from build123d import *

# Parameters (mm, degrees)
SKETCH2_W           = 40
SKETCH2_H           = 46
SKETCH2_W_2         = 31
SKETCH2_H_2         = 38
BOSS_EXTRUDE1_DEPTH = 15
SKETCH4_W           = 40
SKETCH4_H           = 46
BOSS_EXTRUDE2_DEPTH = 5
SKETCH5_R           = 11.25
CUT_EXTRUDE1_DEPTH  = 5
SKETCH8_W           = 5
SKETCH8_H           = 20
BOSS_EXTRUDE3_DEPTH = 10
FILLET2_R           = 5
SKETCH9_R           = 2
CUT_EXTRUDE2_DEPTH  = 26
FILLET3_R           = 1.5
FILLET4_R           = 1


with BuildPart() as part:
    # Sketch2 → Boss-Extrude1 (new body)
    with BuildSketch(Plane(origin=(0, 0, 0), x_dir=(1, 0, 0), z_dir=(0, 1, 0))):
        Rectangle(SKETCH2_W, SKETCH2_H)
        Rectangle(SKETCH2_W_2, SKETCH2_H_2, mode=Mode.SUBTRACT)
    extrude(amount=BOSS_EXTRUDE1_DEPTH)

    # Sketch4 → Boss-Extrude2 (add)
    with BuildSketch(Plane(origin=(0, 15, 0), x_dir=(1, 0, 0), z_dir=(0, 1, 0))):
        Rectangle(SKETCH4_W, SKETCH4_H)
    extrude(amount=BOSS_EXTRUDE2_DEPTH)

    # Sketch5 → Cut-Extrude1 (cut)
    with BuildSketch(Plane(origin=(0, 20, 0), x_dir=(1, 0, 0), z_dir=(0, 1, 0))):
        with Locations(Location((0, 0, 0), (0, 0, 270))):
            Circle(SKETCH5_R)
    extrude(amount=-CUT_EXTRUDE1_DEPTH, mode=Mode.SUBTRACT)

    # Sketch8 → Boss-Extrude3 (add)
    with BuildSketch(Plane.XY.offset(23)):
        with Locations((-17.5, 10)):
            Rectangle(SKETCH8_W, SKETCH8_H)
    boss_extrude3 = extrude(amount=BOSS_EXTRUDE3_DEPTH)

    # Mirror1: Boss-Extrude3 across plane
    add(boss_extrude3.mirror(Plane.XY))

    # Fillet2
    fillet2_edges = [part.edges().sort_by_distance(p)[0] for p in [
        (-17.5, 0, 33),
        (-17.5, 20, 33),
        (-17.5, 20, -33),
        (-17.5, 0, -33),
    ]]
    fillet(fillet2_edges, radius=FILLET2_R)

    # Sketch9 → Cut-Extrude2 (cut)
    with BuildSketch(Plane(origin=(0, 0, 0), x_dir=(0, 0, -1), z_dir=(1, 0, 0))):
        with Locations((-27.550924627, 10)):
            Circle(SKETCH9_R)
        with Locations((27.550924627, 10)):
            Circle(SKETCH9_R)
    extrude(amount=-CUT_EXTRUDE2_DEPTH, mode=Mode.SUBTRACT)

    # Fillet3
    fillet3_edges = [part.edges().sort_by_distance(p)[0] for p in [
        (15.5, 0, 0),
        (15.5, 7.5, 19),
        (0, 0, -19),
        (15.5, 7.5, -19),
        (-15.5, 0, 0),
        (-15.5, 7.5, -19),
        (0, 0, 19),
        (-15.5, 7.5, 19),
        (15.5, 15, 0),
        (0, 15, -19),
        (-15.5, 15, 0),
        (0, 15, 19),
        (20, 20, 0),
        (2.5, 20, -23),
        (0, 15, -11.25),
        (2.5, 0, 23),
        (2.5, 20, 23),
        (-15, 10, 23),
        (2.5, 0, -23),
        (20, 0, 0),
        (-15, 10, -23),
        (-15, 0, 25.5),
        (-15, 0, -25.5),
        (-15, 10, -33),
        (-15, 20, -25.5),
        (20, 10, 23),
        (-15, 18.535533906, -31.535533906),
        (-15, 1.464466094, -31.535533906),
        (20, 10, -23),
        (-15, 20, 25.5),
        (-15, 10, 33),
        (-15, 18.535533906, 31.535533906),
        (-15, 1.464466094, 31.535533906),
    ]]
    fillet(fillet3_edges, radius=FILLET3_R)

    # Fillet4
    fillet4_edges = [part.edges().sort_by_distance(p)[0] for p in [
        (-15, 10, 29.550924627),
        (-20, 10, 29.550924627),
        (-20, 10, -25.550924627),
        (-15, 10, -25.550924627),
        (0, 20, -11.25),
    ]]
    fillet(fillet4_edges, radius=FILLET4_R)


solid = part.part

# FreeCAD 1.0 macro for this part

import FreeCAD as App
import Part
import Sketcher
from FreeCAD import Vector


def edges_at(feature, points):
    """Names of the edges that pass closest to the given points."""
    edges = feature.Shape.Edges
    near = lambda p: min(range(len(edges)), key=lambda i: edges[i].distToShape(Part.Vertex(*p))[0])
    return sorted({f"Edge{near(p) + 1}" for p in points})

doc = App.newDocument("Part")
body = doc.addObject("PartDesign::Body", "Body")

# Sketch on XZ plane
sketch1 = body.newObject("Sketcher::SketchObject", "Sketch")
sketch1.AttachmentSupport = (doc.getObject("XZ_Plane"), [""])
sketch1.MapMode = "FlatFace"
sketch1.addGeometry(Part.LineSegment(Vector(-20, -23, 0), Vector(-20, 23, 0)), False)
sketch1.addGeometry(Part.LineSegment(Vector(-20, 23, 0), Vector(20, 23, 0)), False)
sketch1.addGeometry(Part.LineSegment(Vector(20, 23, 0), Vector(20, -23, 0)), False)
sketch1.addGeometry(Part.LineSegment(Vector(20, -23, 0), Vector(-20, -23, 0)), False)
sketch1.addGeometry(Part.LineSegment(Vector(15.5, 19, 0), Vector(-15.5, 19, 0)), False)
sketch1.addGeometry(Part.LineSegment(Vector(-15.5, 19, 0), Vector(-15.5, -19, 0)), False)
sketch1.addGeometry(Part.LineSegment(Vector(-15.5, -19, 0), Vector(15.5, -19, 0)), False)
sketch1.addGeometry(Part.LineSegment(Vector(15.5, -19, 0), Vector(15.5, 19, 0)), False)
sketch1.addConstraint(Sketcher.Constraint("Coincident", 0, 2, 1, 1))
sketch1.addConstraint(Sketcher.Constraint("Coincident", 1, 2, 2, 1))
sketch1.addConstraint(Sketcher.Constraint("Coincident", 2, 2, 3, 1))
sketch1.addConstraint(Sketcher.Constraint("Coincident", 3, 2, 0, 1))
sketch1.addConstraint(Sketcher.Constraint("Coincident", 4, 2, 5, 1))
sketch1.addConstraint(Sketcher.Constraint("Coincident", 5, 2, 6, 1))
sketch1.addConstraint(Sketcher.Constraint("Coincident", 6, 2, 7, 1))
sketch1.addConstraint(Sketcher.Constraint("Coincident", 7, 2, 4, 1))
sketch1.addConstraint(Sketcher.Constraint("Vertical", 0))
sketch1.addConstraint(Sketcher.Constraint("Horizontal", 1))
sketch1.addConstraint(Sketcher.Constraint("Vertical", 2))
sketch1.addConstraint(Sketcher.Constraint("Horizontal", 3))
sketch1.addConstraint(Sketcher.Constraint("Horizontal", 4))
sketch1.addConstraint(Sketcher.Constraint("Vertical", 5))
sketch1.addConstraint(Sketcher.Constraint("Horizontal", 6))
sketch1.addConstraint(Sketcher.Constraint("Vertical", 7))
sketch1.addConstraint(Sketcher.Constraint("Symmetric", 0, 2, 2, 2, -1, 1))
sketch1.addConstraint(Sketcher.Constraint("Symmetric", 4, 2, 6, 2, -1, 1))
sketch1.addConstraint(Sketcher.Constraint("DistanceX", 1, 1, 1, 2, 40.0))
sketch1.addConstraint(Sketcher.Constraint("DistanceX", 4, 2, 4, 1, 31.0))
sketch1.addConstraint(Sketcher.Constraint("DistanceY", 0, 1, 0, 2, 46.0))
sketch1.addConstraint(Sketcher.Constraint("DistanceY", 5, 2, 5, 1, 38.0))
pad1 = body.newObject("PartDesign::Pad", "Pad")
pad1.Profile = sketch1
pad1.Length = 15
pad1.Reversed = True

# Sketch on XZ plane
sketch2 = body.newObject("Sketcher::SketchObject", "Sketch001")
sketch2.AttachmentSupport = (doc.getObject("XZ_Plane"), [""])
sketch2.MapMode = "FlatFace"
sketch2.AttachmentOffset = App.Placement(Vector(0, 0, -15), App.Rotation())
sketch2.addGeometry(Part.LineSegment(Vector(-20, -23, 0), Vector(-20, 23, 0)), False)
sketch2.addGeometry(Part.LineSegment(Vector(-20, 23, 0), Vector(20, 23, 0)), False)
sketch2.addGeometry(Part.LineSegment(Vector(20, 23, 0), Vector(20, -23, 0)), False)
sketch2.addGeometry(Part.LineSegment(Vector(20, -23, 0), Vector(-20, -23, 0)), False)
sketch2.addConstraint(Sketcher.Constraint("Coincident", 0, 2, 1, 1))
sketch2.addConstraint(Sketcher.Constraint("Coincident", 1, 2, 2, 1))
sketch2.addConstraint(Sketcher.Constraint("Coincident", 2, 2, 3, 1))
sketch2.addConstraint(Sketcher.Constraint("Coincident", 3, 2, 0, 1))
sketch2.addConstraint(Sketcher.Constraint("Vertical", 0))
sketch2.addConstraint(Sketcher.Constraint("Horizontal", 1))
sketch2.addConstraint(Sketcher.Constraint("Vertical", 2))
sketch2.addConstraint(Sketcher.Constraint("Horizontal", 3))
sketch2.addConstraint(Sketcher.Constraint("Symmetric", 0, 2, 2, 2, -1, 1))
sketch2.addConstraint(Sketcher.Constraint("DistanceX", 1, 1, 1, 2, 40.0))
sketch2.addConstraint(Sketcher.Constraint("DistanceY", 0, 1, 0, 2, 46.0))
pad2 = body.newObject("PartDesign::Pad", "Pad001")
pad2.Profile = sketch2
pad2.Length = 5
pad2.Reversed = True

# Sketch on XZ plane
sketch3 = body.newObject("Sketcher::SketchObject", "Sketch002")
sketch3.AttachmentSupport = (doc.getObject("XZ_Plane"), [""])
sketch3.MapMode = "FlatFace"
sketch3.AttachmentOffset = App.Placement(Vector(0, 0, -20), App.Rotation())
sketch3.addGeometry(Part.Circle(Vector(0, 0, 0), Vector(0, 0, 1), 11.25), False)
sketch3.addConstraint(Sketcher.Constraint("Coincident", 0, 3, -1, 1))
sketch3.addConstraint(Sketcher.Constraint("Diameter", 0, 22.5))
pocket1 = body.newObject("PartDesign::Pocket", "Pocket")
pocket1.Profile = sketch3
pocket1.Length = 5
pocket1.Reversed = True

# Sketch on XY plane
sketch4 = body.newObject("Sketcher::SketchObject", "Sketch003")
sketch4.AttachmentSupport = (doc.getObject("XY_Plane"), [""])
sketch4.MapMode = "FlatFace"
sketch4.AttachmentOffset = App.Placement(Vector(0, 0, 23), App.Rotation())
sketch4.addGeometry(Part.LineSegment(Vector(-20, 20, 0), Vector(-20, 0, 0)), False)
sketch4.addGeometry(Part.LineSegment(Vector(-20, 0, 0), Vector(-15, 0, 0)), False)
sketch4.addGeometry(Part.LineSegment(Vector(-15, 0, 0), Vector(-15, 20, 0)), False)
sketch4.addGeometry(Part.LineSegment(Vector(-15, 20, 0), Vector(-20, 20, 0)), False)
sketch4.addConstraint(Sketcher.Constraint("Coincident", 0, 2, 1, 1))
sketch4.addConstraint(Sketcher.Constraint("Coincident", 1, 2, 2, 1))
sketch4.addConstraint(Sketcher.Constraint("Coincident", 2, 2, 3, 1))
sketch4.addConstraint(Sketcher.Constraint("Coincident", 3, 2, 0, 1))
sketch4.addConstraint(Sketcher.Constraint("Vertical", 0))
sketch4.addConstraint(Sketcher.Constraint("Horizontal", 1))
sketch4.addConstraint(Sketcher.Constraint("Vertical", 2))
sketch4.addConstraint(Sketcher.Constraint("Horizontal", 3))
sketch4.addConstraint(Sketcher.Constraint("PointOnObject", 0, 2, -1))
sketch4.addConstraint(Sketcher.Constraint("DistanceX", 1, 1, 1, 2, 5.0))
sketch4.addConstraint(Sketcher.Constraint("DistanceY", 0, 2, 0, 1, 20.0))
sketch4.addConstraint(Sketcher.Constraint("DistanceX", 0, 2, -1, 1, 20.0))
pad3 = body.newObject("PartDesign::Pad", "Pad002")
pad3.Profile = sketch4
pad3.Length = 10
doc.recompute()

mirrored = body.newObject("PartDesign::Mirrored", "Mirrored")
mirrored.Originals = [pad3]
mirrored.MirrorPlane = (doc.getObject("XY_Plane"), [""])
body.Tip = mirrored
doc.recompute()

fillet = body.newObject("PartDesign::Fillet", "Fillet")
fillet.Base = (mirrored, edges_at(mirrored, [
    (-17.5, 0, 33),
    (-17.5, 20, 33),
    (-17.5, 20, -33),
    (-17.5, 0, -33),
]))
fillet.Radius = 5

# Sketch on YZ plane
sketch5 = body.newObject("Sketcher::SketchObject", "Sketch004")
sketch5.AttachmentSupport = (doc.getObject("YZ_Plane"), [""])
sketch5.MapMode = "FlatFace"
sketch5.addGeometry(Part.Circle(Vector(10, 27.550925, 0), Vector(0, 0, 1), 2), False)
sketch5.addGeometry(Part.Circle(Vector(10, -27.550925, 0), Vector(0, 0, 1), 2), False)
sketch5.addConstraint(Sketcher.Constraint("Equal", 0, 1))
sketch5.addConstraint(Sketcher.Constraint("Symmetric", 0, 3, 1, 3, -1))
sketch5.addConstraint(Sketcher.Constraint("Diameter", 0, 4.0))
sketch5.addConstraint(Sketcher.Constraint("DistanceX", -1, 1, 0, 3, 10.0))
sketch5.addConstraint(Sketcher.Constraint("DistanceY", 1, 3, 0, 3, 55.101849))
pocket2 = body.newObject("PartDesign::Pocket", "Pocket001")
pocket2.Profile = sketch5
pocket2.Length = 26
doc.recompute()

fillet2 = body.newObject("PartDesign::Fillet", "Fillet001")
fillet2.Base = (pocket2, edges_at(pocket2, [
    (15.5, 0, 0),
    (15.5, 7.5, 19),
    (0, 0, -19),
    (15.5, 7.5, -19),
    (-15.5, 0, 0),
    (-15.5, 7.5, -19),
    (0, 0, 19),
    (-15.5, 7.5, 19),
    (15.5, 15, 0),
    (0, 15, -19),
    (-15.5, 15, 0),
    (0, 15, 19),
    (20, 20, 0),
    (2.5, 20, -23),
    (0, 15, -11.25),
    (2.5, 0, 23),
    (2.5, 20, 23),
    (-15, 10, 23),
    (2.5, 0, -23),
    (20, 0, 0),
    (-15, 10, -23),
    (-15, 0, 25.5),
    (-15, 0, -25.5),
    (-15, 10, -33),
    (-15, 20, -25.5),
    (20, 10, 23),
    (-15, 18.536, -31.536),
    (-15, 1.464, -31.536),
    (20, 10, -23),
    (-15, 20, 25.5),
    (-15, 10, 33),
    (-15, 18.536, 31.536),
    (-15, 1.464, 31.536),
]))
fillet2.Radius = 1.5
doc.recompute()

fillet3 = body.newObject("PartDesign::Fillet", "Fillet002")
fillet3.Base = (fillet2, edges_at(fillet2, [
    (-15, 10, 29.551),
    (-20, 10, 29.551),
    (-20, 10, -25.551),
    (-15, 10, -25.551),
    (0, 20, -11.25),
]))
fillet3.Radius = 1

doc.recompute()
